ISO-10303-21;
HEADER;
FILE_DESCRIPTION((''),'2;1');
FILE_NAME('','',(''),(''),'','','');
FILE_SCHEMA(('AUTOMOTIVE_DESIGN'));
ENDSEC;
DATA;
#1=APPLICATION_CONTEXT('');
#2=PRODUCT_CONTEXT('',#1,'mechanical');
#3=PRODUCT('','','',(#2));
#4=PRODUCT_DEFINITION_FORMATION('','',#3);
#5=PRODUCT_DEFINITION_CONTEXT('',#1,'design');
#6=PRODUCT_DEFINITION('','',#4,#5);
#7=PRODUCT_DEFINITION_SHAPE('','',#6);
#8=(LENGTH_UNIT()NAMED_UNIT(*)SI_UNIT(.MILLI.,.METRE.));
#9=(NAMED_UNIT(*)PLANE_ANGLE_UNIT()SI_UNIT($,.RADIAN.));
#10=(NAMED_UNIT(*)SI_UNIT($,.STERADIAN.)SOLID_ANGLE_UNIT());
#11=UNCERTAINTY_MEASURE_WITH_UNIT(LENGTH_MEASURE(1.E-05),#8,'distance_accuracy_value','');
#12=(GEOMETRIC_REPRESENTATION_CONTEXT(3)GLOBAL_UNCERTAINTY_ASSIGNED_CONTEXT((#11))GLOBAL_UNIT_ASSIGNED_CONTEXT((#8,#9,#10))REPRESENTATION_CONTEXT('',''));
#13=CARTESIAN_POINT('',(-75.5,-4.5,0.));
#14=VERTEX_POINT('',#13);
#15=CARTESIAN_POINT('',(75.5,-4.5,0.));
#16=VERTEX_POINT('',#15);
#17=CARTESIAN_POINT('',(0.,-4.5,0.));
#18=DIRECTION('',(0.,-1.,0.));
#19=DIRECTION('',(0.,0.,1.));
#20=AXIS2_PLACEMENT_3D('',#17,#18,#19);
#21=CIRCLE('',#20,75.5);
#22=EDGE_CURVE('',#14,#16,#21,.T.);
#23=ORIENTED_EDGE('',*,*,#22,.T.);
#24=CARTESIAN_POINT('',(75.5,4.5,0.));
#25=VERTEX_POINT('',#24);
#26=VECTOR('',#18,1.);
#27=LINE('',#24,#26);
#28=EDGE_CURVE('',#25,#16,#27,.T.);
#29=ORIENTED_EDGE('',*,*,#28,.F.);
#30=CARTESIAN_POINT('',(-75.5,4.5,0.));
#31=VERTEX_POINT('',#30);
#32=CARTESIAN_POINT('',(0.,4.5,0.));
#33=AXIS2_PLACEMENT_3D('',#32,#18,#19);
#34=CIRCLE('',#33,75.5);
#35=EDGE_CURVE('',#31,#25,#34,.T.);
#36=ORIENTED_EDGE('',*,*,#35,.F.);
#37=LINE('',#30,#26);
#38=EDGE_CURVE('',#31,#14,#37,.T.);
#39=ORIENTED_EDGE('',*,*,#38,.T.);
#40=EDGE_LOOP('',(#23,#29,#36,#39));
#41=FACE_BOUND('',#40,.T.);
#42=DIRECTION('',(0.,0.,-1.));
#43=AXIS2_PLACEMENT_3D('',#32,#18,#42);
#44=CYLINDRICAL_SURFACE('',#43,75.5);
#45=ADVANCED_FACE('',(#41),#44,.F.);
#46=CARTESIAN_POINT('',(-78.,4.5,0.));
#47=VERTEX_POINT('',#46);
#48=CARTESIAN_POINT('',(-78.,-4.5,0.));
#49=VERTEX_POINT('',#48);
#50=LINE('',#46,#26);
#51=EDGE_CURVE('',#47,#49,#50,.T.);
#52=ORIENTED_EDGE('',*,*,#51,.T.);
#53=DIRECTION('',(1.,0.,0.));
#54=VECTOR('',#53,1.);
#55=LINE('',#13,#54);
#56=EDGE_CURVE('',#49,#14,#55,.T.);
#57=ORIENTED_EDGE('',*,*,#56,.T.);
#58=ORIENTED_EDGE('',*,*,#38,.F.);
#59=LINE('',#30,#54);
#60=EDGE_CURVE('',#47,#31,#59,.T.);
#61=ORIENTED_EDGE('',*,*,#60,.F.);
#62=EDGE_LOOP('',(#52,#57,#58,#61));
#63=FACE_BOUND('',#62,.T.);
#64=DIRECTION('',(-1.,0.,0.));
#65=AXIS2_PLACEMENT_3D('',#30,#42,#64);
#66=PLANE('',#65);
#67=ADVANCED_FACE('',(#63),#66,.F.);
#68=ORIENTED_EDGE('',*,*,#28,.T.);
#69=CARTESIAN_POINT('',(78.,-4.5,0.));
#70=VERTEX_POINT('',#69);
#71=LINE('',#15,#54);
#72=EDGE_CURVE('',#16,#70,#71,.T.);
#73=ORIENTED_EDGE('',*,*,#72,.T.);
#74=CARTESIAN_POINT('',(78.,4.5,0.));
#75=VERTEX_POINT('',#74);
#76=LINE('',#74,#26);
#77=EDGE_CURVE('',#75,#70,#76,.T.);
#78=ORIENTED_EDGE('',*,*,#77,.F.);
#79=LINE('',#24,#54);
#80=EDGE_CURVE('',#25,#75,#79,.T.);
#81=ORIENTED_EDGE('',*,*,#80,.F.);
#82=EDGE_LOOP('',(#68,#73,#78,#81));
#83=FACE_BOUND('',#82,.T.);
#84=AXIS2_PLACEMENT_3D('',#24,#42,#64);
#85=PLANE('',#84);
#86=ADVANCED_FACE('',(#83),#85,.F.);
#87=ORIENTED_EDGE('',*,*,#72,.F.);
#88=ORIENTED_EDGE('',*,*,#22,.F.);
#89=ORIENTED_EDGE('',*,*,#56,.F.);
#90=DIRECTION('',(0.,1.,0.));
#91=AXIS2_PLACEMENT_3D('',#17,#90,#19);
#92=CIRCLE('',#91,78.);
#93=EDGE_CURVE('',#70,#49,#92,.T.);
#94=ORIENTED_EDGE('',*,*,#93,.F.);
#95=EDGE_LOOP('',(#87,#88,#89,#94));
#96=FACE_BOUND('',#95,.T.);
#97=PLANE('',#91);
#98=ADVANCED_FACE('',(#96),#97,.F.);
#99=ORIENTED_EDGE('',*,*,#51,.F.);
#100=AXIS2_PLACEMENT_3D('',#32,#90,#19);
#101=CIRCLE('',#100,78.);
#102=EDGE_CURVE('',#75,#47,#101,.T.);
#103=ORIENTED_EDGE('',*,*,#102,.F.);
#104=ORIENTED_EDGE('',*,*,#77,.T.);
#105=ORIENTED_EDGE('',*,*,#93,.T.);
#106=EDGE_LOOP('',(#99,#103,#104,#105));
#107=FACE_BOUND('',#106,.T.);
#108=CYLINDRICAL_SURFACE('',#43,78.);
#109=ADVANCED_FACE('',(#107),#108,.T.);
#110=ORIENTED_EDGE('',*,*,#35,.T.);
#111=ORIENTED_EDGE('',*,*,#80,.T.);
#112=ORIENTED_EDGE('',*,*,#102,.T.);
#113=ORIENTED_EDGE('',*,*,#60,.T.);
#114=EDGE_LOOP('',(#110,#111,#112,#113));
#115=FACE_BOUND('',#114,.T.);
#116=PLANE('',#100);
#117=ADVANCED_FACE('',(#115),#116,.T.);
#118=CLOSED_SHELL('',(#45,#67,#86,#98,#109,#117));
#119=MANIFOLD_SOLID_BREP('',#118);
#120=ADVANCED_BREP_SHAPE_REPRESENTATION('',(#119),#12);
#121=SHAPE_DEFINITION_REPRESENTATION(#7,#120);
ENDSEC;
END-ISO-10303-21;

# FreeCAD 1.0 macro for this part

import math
import FreeCAD as App
import Part
import Sketcher

V = App.Vector
Q = App.Units.Quantity

doc = App.newDocument("Part")
body = doc.addObject("PartDesign::Body", "Body")

# Sketch on XZ plane
sketch1 = doc.addObject("Sketcher::SketchObject", "Sketch")
body.addObject(sketch1)
sketch1.AttachmentSupport = (doc.XZ_Plane, [""])
sketch1.MapMode = "FlatFace"
sketch1.addGeometry(Part.LineSegment(V(-78, 0, 0), V(-75.5, 0, 0)), False)
sketch1.addGeometry(Part.ArcOfCircle(Part.Circle(V(0, 0, 0), V(0, 0, 1), 75.5), math.radians(180), math.radians(360)), False)
sketch1.addGeometry(Part.LineSegment(V(75.5, 0, 0), V(78, 0, 0)), False)
sketch1.addGeometry(Part.ArcOfCircle(Part.Circle(V(0, 0, 0), V(0, 0, 1), 78), math.radians(180), math.radians(360)), False)
sketch1.addConstraint(Sketcher.Constraint("Coincident", 0, 2, 1, 1))
sketch1.addConstraint(Sketcher.Constraint("Coincident", 1, 2, 2, 1))
sketch1.addConstraint(Sketcher.Constraint("Coincident", 2, 2, 3, 2))
sketch1.addConstraint(Sketcher.Constraint("Coincident", 3, 1, 0, 1))
sketch1.addConstraint(Sketcher.Constraint("Horizontal", 0))
sketch1.addConstraint(Sketcher.Constraint("Horizontal", 2))
sketch1.addConstraint(Sketcher.Constraint("Coincident", 1, 3, -1, 1))
sketch1.addConstraint(Sketcher.Constraint("Coincident", 3, 3, -1, 1))
sketch1.addConstraint(Sketcher.Constraint("PointOnObject", 0, 2, -1))
sketch1.addConstraint(Sketcher.Constraint("PointOnObject", 1, 2, -1))
sketch1.addConstraint(Sketcher.Constraint("Radius", 3, Q("78 mm")))
sketch1.addConstraint(Sketcher.Constraint("Radius", 1, Q("75.5 mm")))
pad1 = doc.addObject("PartDesign::Pad", "Pad")
body.addObject(pad1)
pad1.Profile = sketch1
pad1.Length = 9
pad1.Midplane = True

doc.recompute()
